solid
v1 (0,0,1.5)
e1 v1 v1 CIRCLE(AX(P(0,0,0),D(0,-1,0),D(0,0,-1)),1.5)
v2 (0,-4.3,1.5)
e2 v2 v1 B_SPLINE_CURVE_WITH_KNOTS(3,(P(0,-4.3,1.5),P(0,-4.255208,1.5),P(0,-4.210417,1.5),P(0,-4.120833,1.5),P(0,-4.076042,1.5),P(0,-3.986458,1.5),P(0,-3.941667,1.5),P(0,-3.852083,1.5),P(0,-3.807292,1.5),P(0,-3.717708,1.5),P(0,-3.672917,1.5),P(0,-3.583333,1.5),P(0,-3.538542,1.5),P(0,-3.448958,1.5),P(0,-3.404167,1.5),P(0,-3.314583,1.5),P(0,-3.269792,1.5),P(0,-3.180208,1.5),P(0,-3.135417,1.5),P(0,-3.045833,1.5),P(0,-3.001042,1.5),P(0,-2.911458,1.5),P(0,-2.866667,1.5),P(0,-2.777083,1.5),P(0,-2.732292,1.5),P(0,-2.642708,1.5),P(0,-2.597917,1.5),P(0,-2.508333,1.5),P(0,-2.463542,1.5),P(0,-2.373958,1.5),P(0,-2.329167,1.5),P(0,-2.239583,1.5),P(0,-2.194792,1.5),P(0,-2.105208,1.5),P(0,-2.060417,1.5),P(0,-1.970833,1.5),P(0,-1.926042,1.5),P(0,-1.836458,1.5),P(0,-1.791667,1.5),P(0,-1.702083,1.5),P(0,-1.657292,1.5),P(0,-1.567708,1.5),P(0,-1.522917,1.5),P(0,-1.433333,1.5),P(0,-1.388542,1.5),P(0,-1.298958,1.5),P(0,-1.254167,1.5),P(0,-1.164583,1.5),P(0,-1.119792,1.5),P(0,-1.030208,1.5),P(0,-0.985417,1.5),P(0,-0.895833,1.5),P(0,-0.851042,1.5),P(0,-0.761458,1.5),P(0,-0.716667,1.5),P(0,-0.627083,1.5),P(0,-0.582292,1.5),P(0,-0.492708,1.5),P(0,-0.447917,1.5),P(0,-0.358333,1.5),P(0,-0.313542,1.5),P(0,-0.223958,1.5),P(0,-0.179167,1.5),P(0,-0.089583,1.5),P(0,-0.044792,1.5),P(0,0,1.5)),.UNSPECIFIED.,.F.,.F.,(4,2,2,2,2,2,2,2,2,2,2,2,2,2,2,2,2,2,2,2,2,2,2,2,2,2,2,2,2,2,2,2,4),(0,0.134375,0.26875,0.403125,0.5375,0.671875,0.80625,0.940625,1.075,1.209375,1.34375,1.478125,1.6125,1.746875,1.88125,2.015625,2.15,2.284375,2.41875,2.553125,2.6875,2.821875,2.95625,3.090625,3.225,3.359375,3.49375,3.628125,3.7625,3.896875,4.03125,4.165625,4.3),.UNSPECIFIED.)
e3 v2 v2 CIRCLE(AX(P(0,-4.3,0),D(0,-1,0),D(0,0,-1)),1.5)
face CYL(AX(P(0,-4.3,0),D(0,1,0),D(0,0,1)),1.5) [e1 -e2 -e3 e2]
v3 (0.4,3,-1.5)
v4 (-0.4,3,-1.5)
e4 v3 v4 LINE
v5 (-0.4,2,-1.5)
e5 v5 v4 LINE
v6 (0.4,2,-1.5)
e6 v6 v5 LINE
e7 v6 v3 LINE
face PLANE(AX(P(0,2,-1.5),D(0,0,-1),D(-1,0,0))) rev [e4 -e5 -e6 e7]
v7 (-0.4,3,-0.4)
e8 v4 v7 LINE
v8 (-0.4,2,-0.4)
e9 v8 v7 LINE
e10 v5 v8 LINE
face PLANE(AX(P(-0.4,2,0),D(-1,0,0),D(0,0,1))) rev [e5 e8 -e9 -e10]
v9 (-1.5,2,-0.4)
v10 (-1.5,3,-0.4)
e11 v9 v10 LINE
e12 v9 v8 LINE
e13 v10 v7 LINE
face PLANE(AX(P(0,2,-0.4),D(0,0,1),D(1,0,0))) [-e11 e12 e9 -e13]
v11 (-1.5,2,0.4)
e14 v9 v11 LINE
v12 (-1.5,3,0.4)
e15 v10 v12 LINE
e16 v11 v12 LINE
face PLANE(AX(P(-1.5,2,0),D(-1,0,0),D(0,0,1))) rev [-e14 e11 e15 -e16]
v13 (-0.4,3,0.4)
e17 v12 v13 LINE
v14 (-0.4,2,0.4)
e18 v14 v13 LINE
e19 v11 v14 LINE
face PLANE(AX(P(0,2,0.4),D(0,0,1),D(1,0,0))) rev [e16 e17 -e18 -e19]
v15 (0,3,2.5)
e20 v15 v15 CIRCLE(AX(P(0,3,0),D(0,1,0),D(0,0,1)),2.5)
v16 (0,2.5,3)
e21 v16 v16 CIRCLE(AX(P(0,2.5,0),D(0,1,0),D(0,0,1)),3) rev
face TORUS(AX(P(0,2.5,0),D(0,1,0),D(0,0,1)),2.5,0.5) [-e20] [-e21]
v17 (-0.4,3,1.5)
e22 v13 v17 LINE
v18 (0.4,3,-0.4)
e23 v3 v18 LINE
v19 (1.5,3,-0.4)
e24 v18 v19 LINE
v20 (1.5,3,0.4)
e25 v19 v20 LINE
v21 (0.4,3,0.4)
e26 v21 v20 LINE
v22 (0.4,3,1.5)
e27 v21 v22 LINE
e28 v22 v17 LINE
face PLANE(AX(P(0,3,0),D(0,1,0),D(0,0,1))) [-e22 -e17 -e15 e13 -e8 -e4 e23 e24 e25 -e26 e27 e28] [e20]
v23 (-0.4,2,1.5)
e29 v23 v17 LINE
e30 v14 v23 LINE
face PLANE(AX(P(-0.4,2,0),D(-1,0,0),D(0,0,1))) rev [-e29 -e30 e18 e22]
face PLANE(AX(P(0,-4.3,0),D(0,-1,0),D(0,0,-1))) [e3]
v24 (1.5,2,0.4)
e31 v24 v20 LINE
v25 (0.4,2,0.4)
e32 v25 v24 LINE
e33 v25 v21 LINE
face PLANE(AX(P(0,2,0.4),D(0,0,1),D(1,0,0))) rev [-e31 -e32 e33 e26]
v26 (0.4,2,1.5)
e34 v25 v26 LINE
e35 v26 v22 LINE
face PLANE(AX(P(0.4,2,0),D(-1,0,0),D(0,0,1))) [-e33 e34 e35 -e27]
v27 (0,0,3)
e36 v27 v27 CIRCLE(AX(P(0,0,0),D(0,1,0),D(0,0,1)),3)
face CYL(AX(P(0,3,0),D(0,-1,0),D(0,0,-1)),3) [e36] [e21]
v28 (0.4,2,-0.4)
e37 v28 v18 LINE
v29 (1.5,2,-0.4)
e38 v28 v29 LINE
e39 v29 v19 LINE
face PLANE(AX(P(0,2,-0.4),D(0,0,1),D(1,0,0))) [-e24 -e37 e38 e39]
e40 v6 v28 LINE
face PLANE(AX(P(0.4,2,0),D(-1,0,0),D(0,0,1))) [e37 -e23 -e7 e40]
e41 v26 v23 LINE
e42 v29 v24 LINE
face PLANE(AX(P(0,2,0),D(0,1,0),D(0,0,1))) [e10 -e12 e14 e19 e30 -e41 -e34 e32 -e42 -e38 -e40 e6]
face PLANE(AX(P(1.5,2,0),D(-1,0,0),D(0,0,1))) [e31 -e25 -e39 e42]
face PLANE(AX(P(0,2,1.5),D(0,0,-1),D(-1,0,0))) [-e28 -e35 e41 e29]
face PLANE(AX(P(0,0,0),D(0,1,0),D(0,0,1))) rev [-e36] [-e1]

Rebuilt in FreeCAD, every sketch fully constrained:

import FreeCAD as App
import Part
import Sketcher


def edges_at(feature, points):
    """Names of the edges that pass closest to the given points."""
    edges = feature.Shape.Edges
    near = lambda p: min(range(len(edges)), key=lambda i: edges[i].distToShape(Part.Vertex(*p))[0])
    return sorted({f"Edge{near(p) + 1}" for p in points})

doc = App.newDocument("Part")
params = doc.addObject("Spreadsheet::Sheet", "Params")
for row, (alias, value) in enumerate([
    ("sketch1_diameter", "6 mm"),
    ("pad1_length", "3 mm"),
    ("sketch2_diameter", "3 mm"),
    ("pad2_length", "4.3 mm"),
    ("fillet_radius", "0.5 mm"),
    ("sketch3_width", "1.1 mm"),
    ("sketch3_width2", "0.8 mm"),
    ("pocket1_length", "1 mm"),
], start=1):
    params.set(f"A{row}", alias)
    params.set(f"B{row}", "=" + value)
    params.setAlias(f"B{row}", alias)

body = doc.addObject("PartDesign::Body", "Body")

# Sketch on XZ plane
sketch1 = body.newObject("Sketcher::SketchObject", "Sketch")
sketch1.AttachmentSupport = (doc.getObject("XZ_Plane"), [""])
sketch1.MapMode = "FlatFace"
sketch1.addGeometry(Part.Circle(App.Vector(0, 0, 0), App.Vector(0, 0, 1), 3), False)
sketch1.addConstraint(Sketcher.Constraint("Coincident", 0, 3, -1, 1))
sketch1.addConstraint(Sketcher.Constraint("Diameter", 0, 6.0))
sketch1.setExpression("Constraints[1]", "Params.sketch1_diameter")
pad1 = body.newObject("PartDesign::Pad", "Pad")
pad1.Profile = sketch1
pad1.setExpression("Length", "Params.pad1_length")
pad1.Reversed = True

# Sketch on XZ plane
sketch2 = body.newObject("Sketcher::SketchObject", "Sketch001")
sketch2.AttachmentSupport = (doc.getObject("XZ_Plane"), [""])
sketch2.MapMode = "FlatFace"
sketch2.addGeometry(Part.Circle(App.Vector(0, 0, 0), App.Vector(0, 0, 1), 1.5), False)
sketch2.addConstraint(Sketcher.Constraint("Coincident", 0, 3, -1, 1))
sketch2.addConstraint(Sketcher.Constraint("Diameter", 0, 3.0))
sketch2.setExpression("Constraints[1]", "Params.sketch2_diameter")
pad2 = body.newObject("PartDesign::Pad", "Pad001")
pad2.Profile = sketch2
pad2.setExpression("Length", "Params.pad2_length")
doc.recompute()

fillet = body.newObject("PartDesign::Fillet", "Fillet")
fillet.Base = (pad2, edges_at(pad2, [(0, 3, -3)]))
fillet.setExpression("Radius", "Params.fillet_radius")

# Sketch on XZ plane
sketch3 = body.newObject("Sketcher::SketchObject", "Sketch002")
sketch3.AttachmentSupport = (doc.getObject("XZ_Plane"), [""])
sketch3.MapMode = "FlatFace"
sketch3.AttachmentOffset = App.Placement(App.Vector(0, 0, -3), App.Rotation())
sketch3.addGeometry(Part.LineSegment(App.Vector(-0.4, -1.5, 0), App.Vector(-0.4, -0.4, 0)), False)
sketch3.addGeometry(Part.LineSegment(App.Vector(-0.4, -0.4, 0), App.Vector(-1.5, -0.4, 0)), False)
sketch3.addGeometry(Part.LineSegment(App.Vector(-1.5, -0.4, 0), App.Vector(-1.5, 0.4, 0)), False)
sketch3.addGeometry(Part.LineSegment(App.Vector(-1.5, 0.4, 0), App.Vector(-0.4, 0.4, 0)), False)
sketch3.addGeometry(Part.LineSegment(App.Vector(-0.4, 0.4, 0), App.Vector(-0.4, 1.5, 0)), False)
sketch3.addGeometry(Part.LineSegment(App.Vector(-0.4, 1.5, 0), App.Vector(0.4, 1.5, 0)), False)
sketch3.addGeometry(Part.LineSegment(App.Vector(0.4, 1.5, 0), App.Vector(0.4, 0.4, 0)), False)
sketch3.addGeometry(Part.LineSegment(App.Vector(0.4, 0.4, 0), App.Vector(1.5, 0.4, 0)), False)
sketch3.addGeometry(Part.LineSegment(App.Vector(1.5, 0.4, 0), App.Vector(1.5, -0.4, 0)), False)
sketch3.addGeometry(Part.LineSegment(App.Vector(1.5, -0.4, 0), App.Vector(0.4, -0.4, 0)), False)
sketch3.addGeometry(Part.LineSegment(App.Vector(0.4, -0.4, 0), App.Vector(0.4, -1.5, 0)), False)
sketch3.addGeometry(Part.LineSegment(App.Vector(0.4, -1.5, 0), App.Vector(-0.4, -1.5, 0)), False)
sketch3.addConstraint(Sketcher.Constraint("Coincident", 0, 2, 1, 1))
sketch3.addConstraint(Sketcher.Constraint("Coincident", 1, 2, 2, 1))
sketch3.addConstraint(Sketcher.Constraint("Coincident", 2, 2, 3, 1))
sketch3.addConstraint(Sketcher.Constraint("Coincident", 3, 2, 4, 1))
sketch3.addConstraint(Sketcher.Constraint("Coincident", 4, 2, 5, 1))
sketch3.addConstraint(Sketcher.Constraint("Coincident", 5, 2, 6, 1))
sketch3.addConstraint(Sketcher.Constraint("Coincident", 6, 2, 7, 1))
sketch3.addConstraint(Sketcher.Constraint("Coincident", 7, 2, 8, 1))
sketch3.addConstraint(Sketcher.Constraint("Coincident", 8, 2, 9, 1))
sketch3.addConstraint(Sketcher.Constraint("Coincident", 9, 2, 10, 1))
sketch3.addConstraint(Sketcher.Constraint("Coincident", 10, 2, 11, 1))
sketch3.addConstraint(Sketcher.Constraint("Coincident", 11, 2, 0, 1))
sketch3.addConstraint(Sketcher.Constraint("Vertical", 0))
sketch3.addConstraint(Sketcher.Constraint("Horizontal", 1))
sketch3.addConstraint(Sketcher.Constraint("Vertical", 2))
sketch3.addConstraint(Sketcher.Constraint("Horizontal", 3))
sketch3.addConstraint(Sketcher.Constraint("Vertical", 4))
sketch3.addConstraint(Sketcher.Constraint("Horizontal", 5))
sketch3.addConstraint(Sketcher.Constraint("Vertical", 6))
sketch3.addConstraint(Sketcher.Constraint("Horizontal", 7))
sketch3.addConstraint(Sketcher.Constraint("Vertical", 8))
sketch3.addConstraint(Sketcher.Constraint("Horizontal", 9))
sketch3.addConstraint(Sketcher.Constraint("Vertical", 10))
sketch3.addConstraint(Sketcher.Constraint("Horizontal", 11))
sketch3.addConstraint(Sketcher.Constraint("Symmetric", 0, 2, 6, 2, -1, 1))
sketch3.addConstraint(Sketcher.Constraint("Symmetric", 2, 2, 8, 2, -1, 1))
sketch3.addConstraint(Sketcher.Constraint("Symmetric", 4, 2, 10, 2, -1, 1))
sketch3.addConstraint(Sketcher.Constraint("Symmetric", 3, 2, 6, 2, -2))
sketch3.addConstraint(Sketcher.Constraint("Equal", 9, 0))
sketch3.addConstraint(Sketcher.Constraint("Equal", 11, 2))
sketch3.addConstraint(Sketcher.Constraint("DistanceX", 1, 2, 1, 1, 1.1))
sketch3.addConstraint(Sketcher.Constraint("DistanceX", 5, 1, 5, 2, 0.8))
sketch3.setExpression("Constraints[30]", "Params.sketch3_width")
sketch3.setExpression("Constraints[31]", "Params.sketch3_width2")
pocket1 = body.newObject("PartDesign::Pocket", "Pocket")
pocket1.Profile = sketch3
pocket1.setExpression("Length", "Params.pocket1_length")
pocket1.Reversed = True

doc.recompute()
